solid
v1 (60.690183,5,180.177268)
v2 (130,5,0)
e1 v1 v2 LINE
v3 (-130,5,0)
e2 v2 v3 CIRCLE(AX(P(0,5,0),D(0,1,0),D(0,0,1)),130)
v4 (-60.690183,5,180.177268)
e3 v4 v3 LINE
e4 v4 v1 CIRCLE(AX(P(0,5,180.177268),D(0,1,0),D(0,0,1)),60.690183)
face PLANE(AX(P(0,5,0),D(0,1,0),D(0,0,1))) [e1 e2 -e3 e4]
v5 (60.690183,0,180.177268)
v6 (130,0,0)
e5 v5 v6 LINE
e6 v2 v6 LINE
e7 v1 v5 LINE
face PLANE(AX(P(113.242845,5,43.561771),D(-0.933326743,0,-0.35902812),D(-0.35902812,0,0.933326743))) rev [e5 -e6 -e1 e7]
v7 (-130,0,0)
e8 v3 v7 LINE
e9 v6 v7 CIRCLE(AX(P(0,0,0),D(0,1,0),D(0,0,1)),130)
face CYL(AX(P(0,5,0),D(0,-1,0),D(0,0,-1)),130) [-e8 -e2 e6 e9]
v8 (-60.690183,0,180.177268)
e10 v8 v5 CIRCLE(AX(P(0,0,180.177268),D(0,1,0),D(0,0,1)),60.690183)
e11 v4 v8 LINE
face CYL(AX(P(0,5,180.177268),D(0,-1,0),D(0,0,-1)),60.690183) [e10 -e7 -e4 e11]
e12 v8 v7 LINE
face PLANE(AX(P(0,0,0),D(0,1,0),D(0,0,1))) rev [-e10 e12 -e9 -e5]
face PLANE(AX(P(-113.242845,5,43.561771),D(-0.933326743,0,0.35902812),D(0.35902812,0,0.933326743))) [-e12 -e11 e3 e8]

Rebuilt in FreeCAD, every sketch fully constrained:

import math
import FreeCAD as App
import Part
import Sketcher
from FreeCAD import Vector

doc = App.newDocument("Part")
body = doc.addObject("PartDesign::Body", "Body")

# Sketch on XZ plane
sketch1 = doc.addObject("Sketcher::SketchObject", "Sketch")
body.addObject(sketch1)
sketch1.AttachmentSupport = (doc.XZ_Plane, [""])
sketch1.MapMode = "FlatFace"
sketch1.addGeometry([
    Part.LineSegment(Vector(-130, 0, 0), Vector(-60.690183, 180.177268, 0)),
    Part.ArcOfCircle(Part.Circle(Vector(0, 180.177268, 0), Vector(0, 0, 1), 60.690183), math.radians(0), math.radians(180)),
    Part.LineSegment(Vector(60.690183, 180.177268, 0), Vector(130, 0, 0)),
    Part.ArcOfCircle(Part.Circle(Vector(0, 0, 0), Vector(0, 0, 1), 130), math.radians(180), math.radians(360)),
], False)
sketch1.addConstraint([
    Sketcher.Constraint("Coincident", 0, 2, 1, 2),
    Sketcher.Constraint("Coincident", 1, 1, 2, 1),
    Sketcher.Constraint("Coincident", 2, 2, 3, 2),
    Sketcher.Constraint("Coincident", 3, 1, 0, 1),
    Sketcher.Constraint("Coincident", 3, 3, -1, 1),
    Sketcher.Constraint("Symmetric", 0, 2, 1, 1, -2),
    Sketcher.Constraint("PointOnObject", 2, 2, -1),
    Sketcher.Constraint("PointOnObject", 3, 1, -1),
    Sketcher.Constraint("Horizontal", 1, 3, 0, 2),
    Sketcher.Constraint("Radius", 3, 130.0),
    Sketcher.Constraint("Radius", 1, 60.690183),
    Sketcher.Constraint("DistanceY", -1, 1, 1, 3, 180.177268),
])
pad1 = doc.addObject("PartDesign::Pad", "Pad")
body.addObject(pad1)
pad1.Profile = sketch1
pad1.Length = 5
pad1.Reversed = True

doc.recompute()
